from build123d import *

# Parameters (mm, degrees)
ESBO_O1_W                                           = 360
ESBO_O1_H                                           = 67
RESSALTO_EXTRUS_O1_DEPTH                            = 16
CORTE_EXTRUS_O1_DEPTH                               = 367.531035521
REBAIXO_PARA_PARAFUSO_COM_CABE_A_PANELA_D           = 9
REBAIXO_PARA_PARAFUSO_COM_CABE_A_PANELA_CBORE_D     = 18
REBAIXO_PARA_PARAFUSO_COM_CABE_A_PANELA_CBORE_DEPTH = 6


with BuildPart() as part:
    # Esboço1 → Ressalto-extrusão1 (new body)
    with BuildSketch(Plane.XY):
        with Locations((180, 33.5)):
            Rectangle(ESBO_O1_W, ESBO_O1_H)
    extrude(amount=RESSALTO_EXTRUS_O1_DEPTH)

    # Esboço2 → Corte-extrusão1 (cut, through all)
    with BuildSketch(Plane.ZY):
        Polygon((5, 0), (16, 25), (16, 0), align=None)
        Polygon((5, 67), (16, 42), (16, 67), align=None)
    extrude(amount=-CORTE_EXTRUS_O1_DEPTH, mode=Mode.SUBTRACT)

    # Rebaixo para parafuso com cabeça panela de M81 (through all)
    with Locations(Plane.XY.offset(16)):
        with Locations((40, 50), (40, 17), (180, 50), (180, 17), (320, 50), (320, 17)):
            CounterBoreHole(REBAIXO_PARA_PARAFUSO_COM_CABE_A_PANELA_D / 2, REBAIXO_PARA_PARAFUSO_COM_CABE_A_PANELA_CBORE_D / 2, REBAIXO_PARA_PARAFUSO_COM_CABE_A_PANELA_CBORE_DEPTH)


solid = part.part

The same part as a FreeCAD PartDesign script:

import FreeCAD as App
import Part
import Sketcher
Q = App.Units.Quantity

doc = App.newDocument("Part")
body = doc.addObject("PartDesign::Body", "Body")

sketch1 = body.newObject("Sketcher::SketchObject", "Sketch")
sketch1.AttachmentSupport = (doc.getObject("XY_Plane"), [""])
sketch1.MapMode = "FlatFace"
sketch1.addGeometry([
    Part.LineSegment(App.Vector(0, 67, 0), App.Vector(0, 0, 0)),
    Part.LineSegment(App.Vector(0, 0, 0), App.Vector(360, 0, 0)),
    Part.LineSegment(App.Vector(360, 0, 0), App.Vector(360, 67, 0)),
    Part.LineSegment(App.Vector(360, 67, 0), App.Vector(0, 67, 0)),
], False)
sketch1.addConstraint([
    Sketcher.Constraint("Coincident", 0, 2, 1, 1),
    Sketcher.Constraint("Coincident", 1, 2, 2, 1),
    Sketcher.Constraint("Coincident", 2, 2, 3, 1),
    Sketcher.Constraint("Coincident", 3, 2, 0, 1),
    Sketcher.Constraint("Vertical", 0),
    Sketcher.Constraint("Horizontal", 1),
    Sketcher.Constraint("Vertical", 2),
    Sketcher.Constraint("Horizontal", 3),
    Sketcher.Constraint("Coincident", 0, 2, -1, 1),
    Sketcher.Constraint("DistanceX", 1, 1, 1, 2, Q("360 mm")),
    Sketcher.Constraint("DistanceY", 0, 2, 0, 1, Q("67 mm")),
])
pad1 = body.newObject("PartDesign::Pad", "Pad")
pad1.Profile = sketch1
pad1.Length = 16

sketch2 = body.newObject("Sketcher::SketchObject", "Sketch001")
sketch2.AttachmentSupport = (doc.getObject("YZ_Plane"), [""])
sketch2.MapMode = "FlatFace"
sketch2.addGeometry([
    Part.LineSegment(App.Vector(25, 16, 0), App.Vector(0, 5, 0)),
    Part.LineSegment(App.Vector(0, 5, 0), App.Vector(0, 16, 0)),
    Part.LineSegment(App.Vector(0, 16, 0), App.Vector(25, 16, 0)),
    Part.LineSegment(App.Vector(67, 5, 0), App.Vector(42, 16, 0)),
    Part.LineSegment(App.Vector(42, 16, 0), App.Vector(67, 16, 0)),
    Part.LineSegment(App.Vector(67, 16, 0), App.Vector(67, 5, 0)),
], False)
sketch2.addConstraint([
    Sketcher.Constraint("Coincident", 0, 2, 1, 1),
    Sketcher.Constraint("Coincident", 1, 2, 2, 1),
    Sketcher.Constraint("Coincident", 2, 2, 0, 1),
    Sketcher.Constraint("Coincident", 3, 2, 4, 1),
    Sketcher.Constraint("Coincident", 4, 2, 5, 1),
    Sketcher.Constraint("Coincident", 5, 2, 3, 1),
    Sketcher.Constraint("Vertical", 1),
    Sketcher.Constraint("Horizontal", 2),
    Sketcher.Constraint("Horizontal", 4),
    Sketcher.Constraint("Vertical", 5),
    Sketcher.Constraint("PointOnObject", 0, 2, -2),
    Sketcher.Constraint("Horizontal", 2, 2, 3, 2),
    Sketcher.Constraint("Horizontal", 0, 2, 5, 2),
    Sketcher.Constraint("Equal", 2, 4),
    Sketcher.Constraint("DistanceX", 2, 1, 2, 2, Q("25 mm")),
    Sketcher.Constraint("DistanceY", 1, 1, 1, 2, Q("11 mm")),
    Sketcher.Constraint("DistanceY", -1, 1, 0, 2, Q("5 mm")),
    Sketcher.Constraint("DistanceX", -1, 1, 3, 2, Q("42 mm")),
])
pocket1 = body.newObject("PartDesign::Pocket", "Pocket")
pocket1.Profile = sketch2
pocket1.Type = "ThroughAll"
pocket1.Reversed = True

sketch3 = body.newObject("Sketcher::SketchObject", "Sketch002")
sketch3.AttachmentSupport = (doc.getObject("XY_Plane"), [""])
sketch3.MapMode = "FlatFace"
sketch3.AttachmentOffset = App.Placement(App.Vector(0, 0, 16), App.Rotation())
sketch3.addGeometry([
    Part.Circle(App.Vector(40, 50, 0), App.Vector(0, 0, 1), 4.5),
    Part.Circle(App.Vector(40, 17, 0), App.Vector(0, 0, 1), 4.5),
    Part.Circle(App.Vector(180, 50, 0), App.Vector(0, 0, 1), 4.5),
    Part.Circle(App.Vector(180, 17, 0), App.Vector(0, 0, 1), 4.5),
    Part.Circle(App.Vector(320, 50, 0), App.Vector(0, 0, 1), 4.5),
    Part.Circle(App.Vector(320, 17, 0), App.Vector(0, 0, 1), 4.5),
], False)
sketch3.addConstraint([
    Sketcher.Constraint("Equal", 0, 1),
    Sketcher.Constraint("Equal", 1, 2),
    Sketcher.Constraint("Equal", 2, 3),
    Sketcher.Constraint("Equal", 3, 4),
    Sketcher.Constraint("Equal", 4, 5),
    Sketcher.Constraint("Horizontal", 0, 3, 2, 3),
    Sketcher.Constraint("Horizontal", 1, 3, 3, 3),
    Sketcher.Constraint("Horizontal", 2, 3, 4, 3),
    Sketcher.Constraint("Horizontal", 3, 3, 5, 3),
    Sketcher.Constraint("Vertical", 0, 3, 1, 3),
    Sketcher.Constraint("Vertical", 2, 3, 3, 3),
    Sketcher.Constraint("Vertical", 4, 3, 5, 3),
    Sketcher.Constraint("Diameter", 0, Q("9 mm")),
    Sketcher.Constraint("DistanceX", -1, 1, 0, 3, Q("40 mm")),
    Sketcher.Constraint("DistanceY", -1, 1, 0, 3, Q("50 mm")),
    Sketcher.Constraint("DistanceY", -1, 1, 1, 3, Q("17 mm")),
    Sketcher.Constraint("DistanceX", -1, 1, 2, 3, Q("180 mm")),
    Sketcher.Constraint("DistanceX", -1, 1, 4, 3, Q("320 mm")),
])
doc.recompute()
hole = body.newObject("PartDesign::Hole", "Hole")
hole.Profile = sketch3
hole.ThreadType = "None"
hole.Diameter = 9
hole.DepthType = "ThroughAll"
hole.HoleCutType = "Counterbore"
hole.HoleCutDiameter = 18
hole.HoleCutDepth = 6

doc.recompute()
